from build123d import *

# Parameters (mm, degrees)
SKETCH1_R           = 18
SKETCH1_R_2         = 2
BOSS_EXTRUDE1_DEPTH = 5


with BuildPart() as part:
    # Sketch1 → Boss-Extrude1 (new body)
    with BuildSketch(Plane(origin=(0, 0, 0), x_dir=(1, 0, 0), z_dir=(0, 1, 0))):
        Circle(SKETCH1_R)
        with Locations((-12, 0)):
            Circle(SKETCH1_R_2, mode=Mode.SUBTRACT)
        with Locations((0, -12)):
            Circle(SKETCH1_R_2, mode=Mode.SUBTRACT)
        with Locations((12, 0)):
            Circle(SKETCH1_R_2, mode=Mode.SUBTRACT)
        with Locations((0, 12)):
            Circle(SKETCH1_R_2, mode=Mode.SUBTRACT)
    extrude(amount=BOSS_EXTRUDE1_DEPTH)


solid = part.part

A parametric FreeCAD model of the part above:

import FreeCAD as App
import Part
import Sketcher
Q = App.Units.Quantity

doc = App.newDocument("Part")
params = doc.addObject("Spreadsheet::Sheet", "Params")
for row, (alias, value) in enumerate([
    ("sketch1_diameter", "36 mm"),
    ("sketch1_diameter2", "4 mm"),
    ("pad1_length", "5 mm"),
], start=1):
    params.set(f"A{row}", alias)
    params.set(f"B{row}", "=" + value)
    params.setAlias(f"B{row}", alias)

body = doc.addObject("PartDesign::Body", "Body")

# Sketch on XZ plane
sketch1 = body.newObject("Sketcher::SketchObject", "Sketch")
sketch1.AttachmentSupport = (doc.getObject("XZ_Plane"), [""])
sketch1.MapMode = "FlatFace"
sketch1.addGeometry(Part.Circle(App.Vector(0, 0, 0), App.Vector(0, 0, 1), 18), False)
sketch1.addGeometry(Part.Circle(App.Vector(0, 12, 0), App.Vector(0, 0, 1), 2), False)
sketch1.addGeometry(Part.Circle(App.Vector(-12, 0, 0), App.Vector(0, 0, 1), 2), False)
sketch1.addGeometry(Part.Circle(App.Vector(12, 0, 0), App.Vector(0, 0, 1), 2), False)
sketch1.addGeometry(Part.Circle(App.Vector(0, -12, 0), App.Vector(0, 0, 1), 2), False)
sketch1.addConstraint(Sketcher.Constraint("Coincident", 0, 3, -1, 1))
sketch1.addConstraint(Sketcher.Constraint("Equal", 1, 2))
sketch1.addConstraint(Sketcher.Constraint("Equal", 2, 3))
sketch1.addConstraint(Sketcher.Constraint("Equal", 3, 4))
sketch1.addConstraint(Sketcher.Constraint("Symmetric", 2, 3, 3, 3, -1, 1))
sketch1.addConstraint(Sketcher.Constraint("Symmetric", 1, 3, 4, 3, -1, 1))
sketch1.addConstraint(Sketcher.Constraint("PointOnObject", 1, 3, -2))
sketch1.addConstraint(Sketcher.Constraint("PointOnObject", 2, 3, -1))
sketch1.addConstraint(Sketcher.Constraint("Diameter", 0, Q("36 mm")))
sketch1.addConstraint(Sketcher.Constraint("Diameter", 1, Q("4 mm")))
sketch1.addConstraint(Sketcher.Constraint("DistanceY", -1, 1, 1, 3, Q("12 mm")))
sketch1.addConstraint(Sketcher.Constraint("DistanceX", 2, 3, -1, 1, Q("12 mm")))
sketch1.setExpression("Constraints[8]", "Params.sketch1_diameter")
sketch1.setExpression("Constraints[9]", "Params.sketch1_diameter2")
pad1 = body.newObject("PartDesign::Pad", "Pad")
pad1.Profile = sketch1
pad1.setExpression("Length", "Params.pad1_length")
pad1.Reversed = True

doc.recompute()
